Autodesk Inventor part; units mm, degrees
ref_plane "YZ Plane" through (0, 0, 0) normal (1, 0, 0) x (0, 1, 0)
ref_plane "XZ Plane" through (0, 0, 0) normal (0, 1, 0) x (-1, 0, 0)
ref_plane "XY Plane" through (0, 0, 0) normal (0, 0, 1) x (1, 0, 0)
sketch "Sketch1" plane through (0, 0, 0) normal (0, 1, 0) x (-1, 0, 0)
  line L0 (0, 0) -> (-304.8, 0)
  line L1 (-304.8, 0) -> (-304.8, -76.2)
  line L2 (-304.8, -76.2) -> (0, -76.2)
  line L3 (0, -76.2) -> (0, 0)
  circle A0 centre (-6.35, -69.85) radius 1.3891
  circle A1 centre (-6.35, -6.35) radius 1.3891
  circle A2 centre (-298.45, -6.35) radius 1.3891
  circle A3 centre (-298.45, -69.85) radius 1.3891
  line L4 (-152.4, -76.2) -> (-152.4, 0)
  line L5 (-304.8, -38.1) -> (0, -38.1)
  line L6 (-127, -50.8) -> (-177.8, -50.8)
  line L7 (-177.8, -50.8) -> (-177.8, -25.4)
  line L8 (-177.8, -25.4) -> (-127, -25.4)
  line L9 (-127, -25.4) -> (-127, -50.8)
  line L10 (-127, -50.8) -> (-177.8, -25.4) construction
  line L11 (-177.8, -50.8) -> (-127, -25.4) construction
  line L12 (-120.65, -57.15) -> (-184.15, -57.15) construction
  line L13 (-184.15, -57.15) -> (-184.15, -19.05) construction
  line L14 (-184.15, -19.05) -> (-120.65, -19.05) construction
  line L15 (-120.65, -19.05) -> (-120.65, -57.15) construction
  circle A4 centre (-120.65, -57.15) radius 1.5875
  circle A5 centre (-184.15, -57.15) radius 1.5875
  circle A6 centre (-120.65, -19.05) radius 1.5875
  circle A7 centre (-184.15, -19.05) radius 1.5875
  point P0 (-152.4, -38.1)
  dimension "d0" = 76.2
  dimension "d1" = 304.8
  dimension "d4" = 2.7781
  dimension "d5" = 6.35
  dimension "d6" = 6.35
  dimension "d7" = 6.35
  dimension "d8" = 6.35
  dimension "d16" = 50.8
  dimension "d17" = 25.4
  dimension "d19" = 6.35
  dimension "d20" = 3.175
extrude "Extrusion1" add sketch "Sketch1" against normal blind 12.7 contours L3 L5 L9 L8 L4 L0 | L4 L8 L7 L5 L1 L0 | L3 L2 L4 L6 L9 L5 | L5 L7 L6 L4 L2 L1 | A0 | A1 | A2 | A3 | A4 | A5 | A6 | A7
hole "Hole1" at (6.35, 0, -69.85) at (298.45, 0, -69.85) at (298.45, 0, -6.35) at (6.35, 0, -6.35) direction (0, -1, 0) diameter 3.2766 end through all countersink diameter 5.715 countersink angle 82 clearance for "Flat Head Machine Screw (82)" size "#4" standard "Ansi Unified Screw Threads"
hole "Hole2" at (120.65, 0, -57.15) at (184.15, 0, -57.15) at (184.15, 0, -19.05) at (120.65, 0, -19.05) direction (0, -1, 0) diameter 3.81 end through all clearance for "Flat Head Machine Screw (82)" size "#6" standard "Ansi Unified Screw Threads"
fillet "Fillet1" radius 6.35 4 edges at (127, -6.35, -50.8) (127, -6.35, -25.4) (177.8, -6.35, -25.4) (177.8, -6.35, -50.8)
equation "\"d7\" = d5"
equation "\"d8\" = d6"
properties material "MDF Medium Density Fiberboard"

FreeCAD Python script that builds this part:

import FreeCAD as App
import Part
import Sketcher
from FreeCAD import Vector
Q = App.Units.Quantity


def edges_at(feature, points):
    """Names of the edges that pass closest to the given points."""
    edges = feature.Shape.Edges
    near = lambda p: min(range(len(edges)), key=lambda i: edges[i].distToShape(Part.Vertex(*p))[0])
    return sorted({f"Edge{near(p) + 1}" for p in points})


def add_polygon(sketch, points):
    """Adds a closed chain of lines whose ends are joined by coincident constraints."""
    first, n = sketch.GeometryCount, len(points)
    for a, b in zip(points, points[1:] + points[:1]):
        sketch.addGeometry(Part.LineSegment(App.Vector(*a, 0), App.Vector(*b, 0)), False)
    for i in range(n):
        sketch.addConstraint(Sketcher.Constraint("Coincident", first + i, 2, first + (i + 1) % n, 1))

doc = App.newDocument("Part")
body = doc.addObject("PartDesign::Body", "Body")

sketch1 = body.newObject("Sketcher::SketchObject", "Sketch")
sketch1.AttachmentSupport = (doc.getObject("XZ_Plane"), [""])
sketch1.MapMode = "FlatFace"
add_polygon(sketch1, [(0, 0), (305, 0), (305, -76), (0, -76)])
add_polygon(sketch1, [(127, -25), (127, -51), (178, -51), (178, -25)])
sketch1.addConstraint(Sketcher.Constraint("Horizontal", 0))
sketch1.addConstraint(Sketcher.Constraint("Vertical", 1))
sketch1.addConstraint(Sketcher.Constraint("Horizontal", 2))
sketch1.addConstraint(Sketcher.Constraint("Vertical", 3))
sketch1.addConstraint(Sketcher.Constraint("Vertical", 4))
sketch1.addConstraint(Sketcher.Constraint("Horizontal", 5))
sketch1.addConstraint(Sketcher.Constraint("Vertical", 6))
sketch1.addConstraint(Sketcher.Constraint("Horizontal", 7))
sketch1.addConstraint(Sketcher.Constraint("Coincident", 3, 2, -1, 1))
sketch1.addConstraint(Sketcher.Constraint("DistanceX", 0, 1, 0, 2, Q("12 in")))
sketch1.addConstraint(Sketcher.Constraint("DistanceX", 5, 1, 5, 2, Q("2 in")))
sketch1.addConstraint(Sketcher.Constraint("DistanceY", 1, 2, 1, 1, Q("3 in")))
sketch1.addConstraint(Sketcher.Constraint("DistanceY", 4, 2, 4, 1, Q("1 in")))
sketch1.addConstraint(Sketcher.Constraint("DistanceY", 4, 2, -1, 1, Q("2 in")))
sketch1.addConstraint(Sketcher.Constraint("DistanceX", -1, 1, 4, 2, Q("5 in")))
pad1 = body.newObject("PartDesign::Pad", "Pad")
pad1.Profile = sketch1
pad1.Length = Q("0.5 in")

sketch2 = body.newObject("Sketcher::SketchObject", "Sketch001")
sketch2.AttachmentSupport = (doc.getObject("XZ_Plane"), [""])
sketch2.MapMode = "FlatFace"
sketch2.addGeometry(Part.Circle(Vector(6.3, -69.8, 0), Vector(0, 0, 1), 1.6), False)
sketch2.addGeometry(Part.Circle(Vector(298.4, -69.8, 0), Vector(0, 0, 1), 1.6), False)
sketch2.addGeometry(Part.Circle(Vector(298.4, -6.3, 0), Vector(0, 0, 1), 1.6), False)
sketch2.addGeometry(Part.Circle(Vector(6.3, -6.3, 0), Vector(0, 0, 1), 1.6), False)
sketch2.addConstraint(Sketcher.Constraint("Equal", 0, 1))
sketch2.addConstraint(Sketcher.Constraint("Equal", 1, 2))
sketch2.addConstraint(Sketcher.Constraint("Equal", 2, 3))
sketch2.addConstraint(Sketcher.Constraint("Horizontal", 0, 3, 1, 3))
sketch2.addConstraint(Sketcher.Constraint("Horizontal", 2, 3, 3, 3))
sketch2.addConstraint(Sketcher.Constraint("Vertical", 1, 3, 2, 3))
sketch2.addConstraint(Sketcher.Constraint("Vertical", 0, 3, 3, 3))
sketch2.addConstraint(Sketcher.Constraint("Diameter", 0, Q("0.129 in")))
sketch2.addConstraint(Sketcher.Constraint("DistanceX", 0, 3, 1, 3, Q("11.5 in")))
sketch2.addConstraint(Sketcher.Constraint("DistanceY", 1, 3, 2, 3, Q("2.5 in")))
sketch2.addConstraint(Sketcher.Constraint("DistanceX", -1, 1, 0, 3, Q("0.25 in")))
sketch2.addConstraint(Sketcher.Constraint("DistanceY", 0, 3, -1, 1, Q("2.75 in")))
doc.recompute()
hole = body.newObject("PartDesign::Hole", "Hole")
hole.Profile = sketch2
hole.ThreadType = "None"
hole.Diameter = Q("0.129 in")
hole.DepthType = "ThroughAll"
hole.HoleCutType = "Countersink"
hole.HoleCutDiameter = Q("0.225 in")
hole.HoleCutCountersinkAngle = 82
hole.Reversed = True

sketch3 = body.newObject("Sketcher::SketchObject", "Sketch002")
sketch3.AttachmentSupport = (doc.getObject("XZ_Plane"), [""])
sketch3.MapMode = "FlatFace"
sketch3.addGeometry(Part.Circle(Vector(120.7, -57.1, 0), Vector(0, 0, 1), 1.9), False)
sketch3.addGeometry(Part.Circle(Vector(184.2, -57.1, 0), Vector(0, 0, 1), 1.9), False)
sketch3.addGeometry(Part.Circle(Vector(184.2, -19.1, 0), Vector(0, 0, 1), 1.9), False)
sketch3.addGeometry(Part.Circle(Vector(120.7, -19.1, 0), Vector(0, 0, 1), 1.9), False)
sketch3.addConstraint(Sketcher.Constraint("Equal", 0, 1))
sketch3.addConstraint(Sketcher.Constraint("Equal", 1, 2))
sketch3.addConstraint(Sketcher.Constraint("Equal", 2, 3))
sketch3.addConstraint(Sketcher.Constraint("Horizontal", 0, 3, 1, 3))
sketch3.addConstraint(Sketcher.Constraint("Horizontal", 2, 3, 3, 3))
sketch3.addConstraint(Sketcher.Constraint("Vertical", 1, 3, 2, 3))
sketch3.addConstraint(Sketcher.Constraint("Vertical", 0, 3, 3, 3))
sketch3.addConstraint(Sketcher.Constraint("Diameter", 0, Q("0.15 in")))
sketch3.addConstraint(Sketcher.Constraint("DistanceX", 0, 3, 1, 3, Q("2.5 in")))
sketch3.addConstraint(Sketcher.Constraint("DistanceY", 1, 3, 2, 3, Q("1.5 in")))
sketch3.addConstraint(Sketcher.Constraint("DistanceX", -1, 1, 0, 3, Q("4.75 in")))
sketch3.addConstraint(Sketcher.Constraint("DistanceY", 0, 3, -1, 1, Q("2.25 in")))
doc.recompute()
hole2 = body.newObject("PartDesign::Hole", "Hole001")
hole2.Profile = sketch3
hole2.ThreadType = "None"
hole2.Diameter = Q("0.15 in")
hole2.DepthType = "ThroughAll"
hole2.Reversed = True
doc.recompute()

fillet = body.newObject("PartDesign::Fillet", "Fillet")
fillet.Base = (hole2, edges_at(hole2, [
    (127, -6.35, -50.8),
    (127, -6.35, -25.4),
    (177.8, -6.35, -25.4),
    (177.8, -6.35, -50.8),
]))
fillet.Radius = Q("0.25 in")

doc.recompute()
